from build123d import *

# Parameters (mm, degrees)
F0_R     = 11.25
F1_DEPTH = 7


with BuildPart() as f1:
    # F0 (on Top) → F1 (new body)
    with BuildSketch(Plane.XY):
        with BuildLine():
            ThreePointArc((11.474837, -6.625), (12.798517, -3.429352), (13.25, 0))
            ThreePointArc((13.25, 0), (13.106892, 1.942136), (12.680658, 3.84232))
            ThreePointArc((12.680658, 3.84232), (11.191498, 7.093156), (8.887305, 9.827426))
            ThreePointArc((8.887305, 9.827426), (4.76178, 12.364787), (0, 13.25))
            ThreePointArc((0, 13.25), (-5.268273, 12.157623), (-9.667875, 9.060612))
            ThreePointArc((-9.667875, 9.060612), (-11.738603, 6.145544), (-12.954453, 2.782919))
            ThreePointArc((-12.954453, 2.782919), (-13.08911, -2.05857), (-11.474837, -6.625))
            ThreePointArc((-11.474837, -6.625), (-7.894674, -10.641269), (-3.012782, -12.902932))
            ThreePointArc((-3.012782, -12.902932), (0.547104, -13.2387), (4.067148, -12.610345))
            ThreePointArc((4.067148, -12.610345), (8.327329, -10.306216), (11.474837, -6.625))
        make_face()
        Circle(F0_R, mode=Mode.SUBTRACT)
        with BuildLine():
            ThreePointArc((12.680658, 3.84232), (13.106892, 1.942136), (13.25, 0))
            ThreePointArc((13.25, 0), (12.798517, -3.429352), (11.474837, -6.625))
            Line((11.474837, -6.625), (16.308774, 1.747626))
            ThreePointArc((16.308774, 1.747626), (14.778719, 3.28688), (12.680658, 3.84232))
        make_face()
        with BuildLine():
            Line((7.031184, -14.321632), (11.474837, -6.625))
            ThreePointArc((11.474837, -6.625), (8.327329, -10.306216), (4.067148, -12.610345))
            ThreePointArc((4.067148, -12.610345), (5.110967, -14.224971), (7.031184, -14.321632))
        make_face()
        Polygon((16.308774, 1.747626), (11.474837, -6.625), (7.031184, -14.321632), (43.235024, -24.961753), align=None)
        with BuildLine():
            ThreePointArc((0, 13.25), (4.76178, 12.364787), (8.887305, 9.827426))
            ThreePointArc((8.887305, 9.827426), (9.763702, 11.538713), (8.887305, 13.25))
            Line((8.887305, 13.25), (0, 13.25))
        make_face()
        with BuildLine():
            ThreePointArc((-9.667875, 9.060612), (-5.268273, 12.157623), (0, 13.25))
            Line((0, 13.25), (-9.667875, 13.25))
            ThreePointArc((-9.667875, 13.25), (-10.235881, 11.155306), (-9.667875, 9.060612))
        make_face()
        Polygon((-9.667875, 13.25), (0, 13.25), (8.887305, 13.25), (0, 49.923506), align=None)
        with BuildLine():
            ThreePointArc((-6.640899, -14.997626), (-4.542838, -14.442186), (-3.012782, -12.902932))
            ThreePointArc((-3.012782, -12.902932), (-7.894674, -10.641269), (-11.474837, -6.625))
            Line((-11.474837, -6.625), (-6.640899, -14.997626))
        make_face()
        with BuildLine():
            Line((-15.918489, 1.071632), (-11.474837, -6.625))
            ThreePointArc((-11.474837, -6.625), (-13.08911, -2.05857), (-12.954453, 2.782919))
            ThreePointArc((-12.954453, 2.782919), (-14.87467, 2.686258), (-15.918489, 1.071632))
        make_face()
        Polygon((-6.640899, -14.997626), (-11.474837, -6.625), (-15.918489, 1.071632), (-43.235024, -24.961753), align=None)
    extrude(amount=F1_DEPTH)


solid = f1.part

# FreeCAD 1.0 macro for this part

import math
import FreeCAD as App
import Part
import Sketcher

doc = App.newDocument("Part")
params = doc.addObject("Spreadsheet::Sheet", "Params")
for row, (alias, value) in enumerate([
    ("sketch1_diameter", "22.5 mm"),
    ("sketch1_radius", "13.250001 mm"),
    ("pad1_length", "7 mm"),
], start=1):
    params.set(f"A{row}", alias)
    params.set(f"B{row}", "=" + value)
    params.setAlias(f"B{row}", alias)

body = doc.addObject("PartDesign::Body", "Body")

# Sketch on XY plane
sketch1 = body.newObject("Sketcher::SketchObject", "Sketch")
sketch1.AttachmentSupport = (doc.getObject("XY_Plane"), [""])
sketch1.MapMode = "FlatFace"
sketch1.addGeometry([
    Part.ArcOfCircle(Part.Circle(App.Vector(12.705511, -0.30402, 0), App.Vector(0, 0, 1), 4.146415), math.radians(29.656567), math.radians(90.343428)),  # 0
    Part.ArcOfCircle(Part.Circle(App.Vector(-0.000009, -0.000008, 0), App.Vector(0, 0, 1), 13.250012), math.radians(16.857161), math.radians(47.875786)),  # 1
    Part.ArcOfCircle(Part.Circle(App.Vector(7.654741, 11.538713, 0), App.Vector(0, 0, 1), 2.108961), math.radians(-54.236461), math.radians(54.236461)),  # 2
    Part.LineSegment(App.Vector(8.887305, 13.25, 0), App.Vector(0, 49.923506, 0)),  # 3
    Part.LineSegment(App.Vector(0, 49.923506, 0), App.Vector(-9.667875, 13.25, 0)),  # 4
    Part.ArcOfCircle(Part.Circle(App.Vector(-6.089469, 11.155306, 0), App.Vector(0, 0, 1), 4.146412), math.radians(149.656544), math.radians(210.343456)),  # 5
    Part.ArcOfCircle(Part.Circle(App.Vector(-0.000016, 0.000009, 0), App.Vector(0, 0, 1), 13.249982), math.radians(136.857121), math.radians(167.875817)),  # 6
    Part.ArcOfCircle(Part.Circle(App.Vector(-13.82019, 0.859845, 0), App.Vector(0, 0, 1), 2.10896), math.radians(65.763506), math.radians(174.236495)),  # 7
    Part.LineSegment(App.Vector(-15.918489, 1.071632, 0), App.Vector(-43.235024, -24.961753, 0)),  # 8
    Part.LineSegment(App.Vector(-43.235024, -24.961753, 0), App.Vector(-6.640899, -14.997626, 0)),  # 9
    Part.ArcOfCircle(Part.Circle(App.Vector(-6.616047, -10.851283, 0), App.Vector(0, 0, 1), 4.146418), math.radians(-90.343416), math.radians(-29.656592)),  # 10
    Part.ArcOfCircle(Part.Circle(App.Vector(-0.000001, 0.000001, 0), App.Vector(0, 0, 1), 13.250001), math.radians(-103.142851), math.radians(-72.124203)),  # 11
    Part.ArcOfCircle(Part.Circle(App.Vector(6.165447, -12.398558, 0), App.Vector(0, 0, 1), 2.10896), math.radians(-174.236495), math.radians(-65.763506)),  # 12
    Part.LineSegment(App.Vector(7.031184, -14.321632, 0), App.Vector(43.235024, -24.961753, 0)),  # 13
    Part.LineSegment(App.Vector(43.235024, -24.961753, 0), App.Vector(16.308774, 1.747626, 0)),  # 14
    Part.Circle(App.Vector(0, 0, 0), App.Vector(0, 0, 1), 11.25),  # 15
], False)
sketch1.addConstraint([
    Sketcher.Constraint("Coincident", 0, 2, 1, 1),
    Sketcher.Constraint("Coincident", 1, 2, 2, 1),
    Sketcher.Constraint("Coincident", 2, 2, 3, 1),
    Sketcher.Constraint("Coincident", 3, 2, 4, 1),
    Sketcher.Constraint("Coincident", 4, 2, 5, 1),
    Sketcher.Constraint("Coincident", 5, 2, 6, 1),
    Sketcher.Constraint("Coincident", 6, 2, 7, 1),
    Sketcher.Constraint("Coincident", 7, 2, 8, 1),
    Sketcher.Constraint("Coincident", 8, 2, 9, 1),
    Sketcher.Constraint("Coincident", 9, 2, 10, 1),
    Sketcher.Constraint("Coincident", 10, 2, 11, 1),
    Sketcher.Constraint("Coincident", 11, 2, 12, 1),
    Sketcher.Constraint("Coincident", 12, 2, 13, 1),
    Sketcher.Constraint("Coincident", 13, 2, 14, 1),
    Sketcher.Constraint("Coincident", 14, 2, 0, 1),
    Sketcher.Constraint("Coincident", 11, 3, -1, 1),
    Sketcher.Constraint("Coincident", 15, 3, -1, 1),
    Sketcher.Constraint("PointOnObject", 3, 2, -2),
    Sketcher.Constraint("Diameter", 15, 22.5),
    Sketcher.Constraint("Radius", 11, 13.250001),
    Sketcher.Constraint("DistanceY", -1, 1, 2, 2, 13.25),
    Sketcher.Constraint("DistanceY", -1, 1, 4, 2, 13.25),
    Sketcher.Constraint("Radius", 1, 13.250012),
    Sketcher.Constraint("Radius", 2, 2.108961),
    Sketcher.Constraint("Radius", 5, 4.146412),
    Sketcher.Constraint("Radius", 7, 2.10896),
    Sketcher.Constraint("Radius", 12, 2.10896),
    Sketcher.Constraint("Distance", 3, 37.735),
    Sketcher.Constraint("Distance", 8, 37.735),
    Sketcher.Constraint("Distance", 13, 37.735),
    Sketcher.Constraint("Radius", 0, 4.146415),
    Sketcher.Constraint("Radius", 6, 13.249982),
    Sketcher.Constraint("Radius", 10, 4.146418),
    Sketcher.Constraint("DistanceX", 9, 2, -1, 1, 6.640899),
    Sketcher.Constraint("DistanceX", 7, 3, 0, 3, 26.525701),
    Sketcher.Constraint("DistanceY", 5, 3, 3, 2, 38.7682),
    Sketcher.Constraint("DistanceX", 7, 2, 7, 3, 2.098299),
    Sketcher.Constraint("DistanceX", 11, 2, 12, 3, 2.098299),
    Sketcher.Constraint("DistanceY", 12, 2, 10, 2, 1.4187),
    Sketcher.Constraint("DistanceY", 14, 2, 1, 2, 8.0798),
    Sketcher.Constraint("DistanceX", -1, 1, 0, 3, 12.705511),
    Sketcher.Constraint("DistanceY", 0, 3, -1, 1, 0.30402),
    Sketcher.Constraint("DistanceX", -1, 1, 2, 3, 7.654741),
    Sketcher.Constraint("DistanceX", 5, 3, -1, 1, 6.089469),
    Sketcher.Constraint("DistanceX", -1, 1, 0, 2, 12.680658),
    Sketcher.Constraint("DistanceY", -1, 1, 6, 2, 2.782919),
    Sketcher.Constraint("DistanceY", 10, 2, -1, 1, 12.902932),
    Sketcher.Constraint("DistanceX", -1, 1, 11, 2, 4.067148),
    Sketcher.Constraint("DistanceX", 1, 3, 0, 3, 12.705521),
    Sketcher.Constraint("DistanceY", 1, 3, 2, 3, 11.538721),
    Sketcher.Constraint("DistanceY", 0, 3, 6, 3, 0.304029),
    Sketcher.Constraint("DistanceY", 7, 3, 5, 3, 10.295461),
    Sketcher.Constraint("DistanceX", 10, 3, 6, 3, 6.616031),
    Sketcher.Constraint("DistanceY", 8, 2, 10, 3, 14.11047),
    Sketcher.Constraint("DistanceX", 12, 2, 13, 2, 36.20384),
])
sketch1.setExpression("Constraints[18]", "Params.sketch1_diameter")
sketch1.setExpression("Constraints[19]", "Params.sketch1_radius")
pad1 = body.newObject("PartDesign::Pad", "Pad")
pad1.Profile = sketch1
pad1.setExpression("Length", "Params.pad1_length")

doc.recompute()
